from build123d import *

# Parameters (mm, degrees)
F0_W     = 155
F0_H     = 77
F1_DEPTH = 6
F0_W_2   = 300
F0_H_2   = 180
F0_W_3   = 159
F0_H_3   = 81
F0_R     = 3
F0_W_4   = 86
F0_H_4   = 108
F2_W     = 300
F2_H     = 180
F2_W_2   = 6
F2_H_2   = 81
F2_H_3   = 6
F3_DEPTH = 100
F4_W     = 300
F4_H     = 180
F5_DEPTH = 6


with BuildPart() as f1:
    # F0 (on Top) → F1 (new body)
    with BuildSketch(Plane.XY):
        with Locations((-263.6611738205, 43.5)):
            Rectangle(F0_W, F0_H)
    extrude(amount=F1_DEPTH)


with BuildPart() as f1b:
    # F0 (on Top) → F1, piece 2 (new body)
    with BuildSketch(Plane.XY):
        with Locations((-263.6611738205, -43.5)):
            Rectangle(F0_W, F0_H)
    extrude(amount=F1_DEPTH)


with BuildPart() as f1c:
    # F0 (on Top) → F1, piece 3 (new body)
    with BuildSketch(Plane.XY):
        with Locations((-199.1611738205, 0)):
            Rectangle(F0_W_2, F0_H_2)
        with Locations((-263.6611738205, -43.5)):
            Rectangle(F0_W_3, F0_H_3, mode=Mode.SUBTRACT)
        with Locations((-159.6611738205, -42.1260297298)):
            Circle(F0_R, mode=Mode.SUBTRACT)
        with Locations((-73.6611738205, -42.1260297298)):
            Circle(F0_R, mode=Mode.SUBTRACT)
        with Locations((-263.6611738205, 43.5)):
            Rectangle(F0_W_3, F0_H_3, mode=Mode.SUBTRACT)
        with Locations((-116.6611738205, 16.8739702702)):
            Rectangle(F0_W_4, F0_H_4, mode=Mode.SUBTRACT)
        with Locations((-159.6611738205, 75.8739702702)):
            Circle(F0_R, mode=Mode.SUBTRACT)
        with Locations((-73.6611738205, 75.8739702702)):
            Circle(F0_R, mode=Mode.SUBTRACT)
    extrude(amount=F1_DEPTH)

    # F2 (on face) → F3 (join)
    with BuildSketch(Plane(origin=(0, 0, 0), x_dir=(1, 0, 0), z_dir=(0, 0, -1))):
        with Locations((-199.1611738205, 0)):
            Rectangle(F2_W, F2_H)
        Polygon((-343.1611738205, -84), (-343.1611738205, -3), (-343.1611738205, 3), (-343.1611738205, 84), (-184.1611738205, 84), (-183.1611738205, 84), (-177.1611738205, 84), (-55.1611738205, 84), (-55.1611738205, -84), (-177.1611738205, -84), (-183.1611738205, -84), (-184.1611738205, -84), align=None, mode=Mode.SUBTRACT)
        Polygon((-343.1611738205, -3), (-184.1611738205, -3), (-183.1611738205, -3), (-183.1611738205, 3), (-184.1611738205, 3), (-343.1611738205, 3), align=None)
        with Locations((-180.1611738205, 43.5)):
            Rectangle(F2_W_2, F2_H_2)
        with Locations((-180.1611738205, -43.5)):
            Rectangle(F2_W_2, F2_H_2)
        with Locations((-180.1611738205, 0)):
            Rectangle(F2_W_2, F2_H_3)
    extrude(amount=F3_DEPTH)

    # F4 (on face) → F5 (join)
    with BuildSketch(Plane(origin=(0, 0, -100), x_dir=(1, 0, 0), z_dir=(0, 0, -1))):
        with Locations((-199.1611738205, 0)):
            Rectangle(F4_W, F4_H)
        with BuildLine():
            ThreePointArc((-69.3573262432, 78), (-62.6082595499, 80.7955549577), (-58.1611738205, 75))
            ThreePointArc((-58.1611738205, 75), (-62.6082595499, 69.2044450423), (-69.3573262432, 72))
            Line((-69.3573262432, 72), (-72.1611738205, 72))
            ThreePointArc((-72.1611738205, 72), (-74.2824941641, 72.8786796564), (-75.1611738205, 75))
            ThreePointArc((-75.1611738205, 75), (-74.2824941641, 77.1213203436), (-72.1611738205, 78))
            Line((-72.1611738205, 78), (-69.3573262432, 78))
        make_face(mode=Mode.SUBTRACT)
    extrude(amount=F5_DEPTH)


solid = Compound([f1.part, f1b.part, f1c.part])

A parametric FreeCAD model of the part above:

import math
import FreeCAD as App
import Part
import Sketcher
Q = App.Units.Quantity

doc = App.newDocument("Part")
body = doc.addObject("PartDesign::Body", "Body")

# Sketch on XY plane
sketch1 = body.newObject("Sketcher::SketchObject", "Sketch")
sketch1.AttachmentSupport = (doc.getObject("XY_Plane"), [""])
sketch1.MapMode = "FlatFace"
sketch1.addGeometry([
    Part.LineSegment(App.Vector(-341.161174, 82, 0), App.Vector(-341.161174, 5, 0)),
    Part.LineSegment(App.Vector(-341.161174, 5, 0), App.Vector(-186.161174, 5, 0)),
    Part.LineSegment(App.Vector(-186.161174, 5, 0), App.Vector(-186.161174, 82, 0)),
    Part.LineSegment(App.Vector(-186.161174, 82, 0), App.Vector(-341.161174, 82, 0)),
], False)
sketch1.addConstraint([
    Sketcher.Constraint("Coincident", 0, 2, 1, 1),
    Sketcher.Constraint("Coincident", 1, 2, 2, 1),
    Sketcher.Constraint("Coincident", 2, 2, 3, 1),
    Sketcher.Constraint("Coincident", 3, 2, 0, 1),
    Sketcher.Constraint("Vertical", 0),
    Sketcher.Constraint("Horizontal", 1),
    Sketcher.Constraint("Vertical", 2),
    Sketcher.Constraint("Horizontal", 3),
    Sketcher.Constraint("DistanceX", 1, 1, 1, 2, Q("155 mm")),
    Sketcher.Constraint("DistanceY", 0, 2, 0, 1, Q("77 mm")),
    Sketcher.Constraint("DistanceY", -1, 1, 0, 2, Q("5 mm")),
    Sketcher.Constraint("DistanceX", 0, 2, -1, 1, Q("341.161174 mm")),
])
pad1 = body.newObject("PartDesign::Pad", "Pad")
pad1.Profile = sketch1
pad1.Length = 6
body2 = doc.addObject("PartDesign::Body", "Body001")

# Sketch on XY plane
sketch2 = body2.newObject("Sketcher::SketchObject", "Sketch001")
sketch2.AttachmentSupport = (doc.getObject("XY_Plane001"), [""])
sketch2.MapMode = "FlatFace"
sketch2.addGeometry([
    Part.LineSegment(App.Vector(-341.161174, -5, 0), App.Vector(-341.161174, -82, 0)),
    Part.LineSegment(App.Vector(-341.161174, -82, 0), App.Vector(-186.161174, -82, 0)),
    Part.LineSegment(App.Vector(-186.161174, -82, 0), App.Vector(-186.161174, -5, 0)),
    Part.LineSegment(App.Vector(-186.161174, -5, 0), App.Vector(-341.161174, -5, 0)),
], False)
sketch2.addConstraint([
    Sketcher.Constraint("Coincident", 0, 2, 1, 1),
    Sketcher.Constraint("Coincident", 1, 2, 2, 1),
    Sketcher.Constraint("Coincident", 2, 2, 3, 1),
    Sketcher.Constraint("Coincident", 3, 2, 0, 1),
    Sketcher.Constraint("Vertical", 0),
    Sketcher.Constraint("Horizontal", 1),
    Sketcher.Constraint("Vertical", 2),
    Sketcher.Constraint("Horizontal", 3),
    Sketcher.Constraint("DistanceX", 1, 1, 1, 2, Q("155 mm")),
    Sketcher.Constraint("DistanceY", 0, 2, 0, 1, Q("77 mm")),
    Sketcher.Constraint("DistanceY", 0, 2, -1, 1, Q("82 mm")),
    Sketcher.Constraint("DistanceX", 0, 2, -1, 1, Q("341.161174 mm")),
])
pad2 = body2.newObject("PartDesign::Pad", "Pad001")
pad2.Profile = sketch2
pad2.Length = 6
body3 = doc.addObject("PartDesign::Body", "Body002")

# Sketch on XY plane
sketch3 = body3.newObject("Sketcher::SketchObject", "Sketch002")
sketch3.AttachmentSupport = (doc.getObject("XY_Plane002"), [""])
sketch3.MapMode = "FlatFace"
sketch3.addGeometry([
    Part.LineSegment(App.Vector(-349.161174, 90, 0), App.Vector(-349.161174, -90, 0)),  # 0
    Part.LineSegment(App.Vector(-349.161174, -90, 0), App.Vector(-49.161174, -90, 0)),  # 1
    Part.LineSegment(App.Vector(-49.161174, -90, 0), App.Vector(-49.161174, 90, 0)),  # 2
    Part.LineSegment(App.Vector(-49.161174, 90, 0), App.Vector(-349.161174, 90, 0)),  # 3
    Part.LineSegment(App.Vector(-184.161174, -84, 0), App.Vector(-343.161174, -84, 0)),  # 4
    Part.LineSegment(App.Vector(-343.161174, -84, 0), App.Vector(-343.161174, -3, 0)),  # 5
    Part.LineSegment(App.Vector(-343.161174, -3, 0), App.Vector(-184.161174, -3, 0)),  # 6
    Part.LineSegment(App.Vector(-184.161174, -3, 0), App.Vector(-184.161174, -84, 0)),  # 7
    Part.Circle(App.Vector(-159.661174, -42.12603, 0), App.Vector(0, 0, 1), 3),  # 8
    Part.Circle(App.Vector(-73.661174, -42.12603, 0), App.Vector(0, 0, 1), 3),  # 9
    Part.LineSegment(App.Vector(-184.161174, 3, 0), App.Vector(-343.161174, 3, 0)),  # 10
    Part.LineSegment(App.Vector(-343.161174, 3, 0), App.Vector(-343.161174, 84, 0)),  # 11
    Part.LineSegment(App.Vector(-343.161174, 84, 0), App.Vector(-184.161174, 84, 0)),  # 12
    Part.LineSegment(App.Vector(-184.161174, 84, 0), App.Vector(-184.161174, 3, 0)),  # 13
    Part.LineSegment(App.Vector(-73.661174, -37.12603, 0), App.Vector(-159.661174, -37.12603, 0)),  # 14
    Part.LineSegment(App.Vector(-159.661174, -37.12603, 0), App.Vector(-159.661174, 70.87397, 0)),  # 15
    Part.LineSegment(App.Vector(-159.661174, 70.87397, 0), App.Vector(-73.661174, 70.87397, 0)),  # 16
    Part.LineSegment(App.Vector(-73.661174, 70.87397, 0), App.Vector(-73.661174, -37.12603, 0)),  # 17
    Part.Circle(App.Vector(-159.661174, 75.87397, 0), App.Vector(0, 0, 1), 3),  # 18
    Part.Circle(App.Vector(-73.661174, 75.87397, 0), App.Vector(0, 0, 1), 3),  # 19
], False)
sketch3.addConstraint([
    Sketcher.Constraint("Coincident", 0, 2, 1, 1),
    Sketcher.Constraint("Coincident", 1, 2, 2, 1),
    Sketcher.Constraint("Coincident", 2, 2, 3, 1),
    Sketcher.Constraint("Coincident", 3, 2, 0, 1),
    Sketcher.Constraint("Coincident", 4, 2, 5, 1),
    Sketcher.Constraint("Coincident", 5, 2, 6, 1),
    Sketcher.Constraint("Coincident", 6, 2, 7, 1),
    Sketcher.Constraint("Coincident", 7, 2, 4, 1),
    Sketcher.Constraint("Coincident", 10, 2, 11, 1),
    Sketcher.Constraint("Coincident", 11, 2, 12, 1),
    Sketcher.Constraint("Coincident", 12, 2, 13, 1),
    Sketcher.Constraint("Coincident", 13, 2, 10, 1),
    Sketcher.Constraint("Coincident", 14, 2, 15, 1),
    Sketcher.Constraint("Coincident", 15, 2, 16, 1),
    Sketcher.Constraint("Coincident", 16, 2, 17, 1),
    Sketcher.Constraint("Coincident", 17, 2, 14, 1),
    Sketcher.Constraint("Vertical", 0),
    Sketcher.Constraint("Horizontal", 1),
    Sketcher.Constraint("Vertical", 2),
    Sketcher.Constraint("Horizontal", 3),
    Sketcher.Constraint("Horizontal", 4),
    Sketcher.Constraint("Vertical", 5),
    Sketcher.Constraint("Horizontal", 6),
    Sketcher.Constraint("Vertical", 7),
    Sketcher.Constraint("Horizontal", 10),
    Sketcher.Constraint("Vertical", 11),
    Sketcher.Constraint("Horizontal", 12),
    Sketcher.Constraint("Vertical", 13),
    Sketcher.Constraint("Horizontal", 14),
    Sketcher.Constraint("Vertical", 15),
    Sketcher.Constraint("Horizontal", 16),
    Sketcher.Constraint("Vertical", 17),
    Sketcher.Constraint("Equal", 8, 9),
    Sketcher.Constraint("Equal", 9, 18),
    Sketcher.Constraint("Equal", 18, 19),
    Sketcher.Constraint("Symmetric", 5, 2, 10, 2, -1),
    Sketcher.Constraint("Symmetric", 7, 2, 12, 2, -1),
    Sketcher.Constraint("Horizontal", 8, 3, 9, 3),
    Sketcher.Constraint("Horizontal", 18, 3, 19, 3),
    Sketcher.Constraint("Vertical", 8, 3, 18, 3),
    Sketcher.Constraint("Vertical", 9, 3, 19, 3),
    Sketcher.Constraint("Vertical", 18, 3, 14, 2),
    Sketcher.Constraint("Vertical", 19, 3, 16, 2),
    Sketcher.Constraint("Diameter", 8, Q("6 mm")),
    Sketcher.Constraint("DistanceX", 1, 1, 1, 2, Q("300 mm")),
    Sketcher.Constraint("DistanceX", 4, 2, 4, 1, Q("159 mm")),
    Sketcher.Constraint("DistanceX", 14, 2, 14, 1, Q("86 mm")),
    Sketcher.Constraint("DistanceY", 0, 2, 0, 1, Q("180 mm")),
    Sketcher.Constraint("DistanceY", 5, 1, 5, 2, Q("81 mm")),
    Sketcher.Constraint("DistanceY", 15, 1, 15, 2, Q("108 mm")),
    Sketcher.Constraint("DistanceY", 0, 2, -1, 1, Q("90 mm")),
    Sketcher.Constraint("DistanceY", 4, 2, -1, 1, Q("84 mm")),
    Sketcher.Constraint("DistanceY", 8, 3, 18, 3, Q("118 mm")),
    Sketcher.Constraint("DistanceX", 0, 2, 4, 2, Q("6 mm")),
    Sketcher.Constraint("DistanceY", 8, 3, 14, 2, Q("5 mm")),
    Sketcher.Constraint("DistanceX", 0, 2, 8, 3, Q("189.5 mm")),
    Sketcher.Constraint("DistanceY", 8, 3, -1, 1, Q("42.12603 mm")),
    Sketcher.Constraint("DistanceX", 8, 3, -1, 1, Q("159.661174 mm")),
])
pad3 = body3.newObject("PartDesign::Pad", "Pad002")
pad3.Profile = sketch3
pad3.Length = 6

# Sketch on XY plane
sketch4 = body3.newObject("Sketcher::SketchObject", "Sketch003")
sketch4.AttachmentSupport = (doc.getObject("XY_Plane002"), [""])
sketch4.MapMode = "FlatFace"
sketch4.addGeometry([
    Part.LineSegment(App.Vector(-349.161174, -90, 0), App.Vector(-349.161174, 90, 0)),  # 0
    Part.LineSegment(App.Vector(-349.161174, 90, 0), App.Vector(-49.161174, 90, 0)),  # 1
    Part.LineSegment(App.Vector(-49.161174, 90, 0), App.Vector(-49.161174, -90, 0)),  # 2
    Part.LineSegment(App.Vector(-49.161174, -90, 0), App.Vector(-349.161174, -90, 0)),  # 3
    Part.LineSegment(App.Vector(-343.161174, 3, 0), App.Vector(-183.161174, 3, 0)),  # 4
    Part.LineSegment(App.Vector(-183.161174, 3, 0), App.Vector(-183.161174, 84, 0)),  # 5
    Part.LineSegment(App.Vector(-183.161174, 84, 0), App.Vector(-343.161174, 84, 0)),  # 6
    Part.LineSegment(App.Vector(-343.161174, 84, 0), App.Vector(-343.161174, 3, 0)),  # 7
    Part.LineSegment(App.Vector(-183.161174, -84, 0), App.Vector(-183.161174, -3, 0)),  # 8
    Part.LineSegment(App.Vector(-183.161174, -3, 0), App.Vector(-343.161174, -3, 0)),  # 9
    Part.LineSegment(App.Vector(-343.161174, -3, 0), App.Vector(-343.161174, -84, 0)),  # 10
    Part.LineSegment(App.Vector(-343.161174, -84, 0), App.Vector(-183.161174, -84, 0)),  # 11
    Part.LineSegment(App.Vector(-177.161174, 84, 0), App.Vector(-177.161174, -84, 0)),  # 12
    Part.LineSegment(App.Vector(-177.161174, -84, 0), App.Vector(-55.161174, -84, 0)),  # 13
    Part.LineSegment(App.Vector(-55.161174, -84, 0), App.Vector(-55.161174, 84, 0)),  # 14
    Part.LineSegment(App.Vector(-55.161174, 84, 0), App.Vector(-177.161174, 84, 0)),  # 15
], False)
sketch4.addConstraint([
    Sketcher.Constraint("Coincident", 0, 2, 1, 1),
    Sketcher.Constraint("Coincident", 1, 2, 2, 1),
    Sketcher.Constraint("Coincident", 2, 2, 3, 1),
    Sketcher.Constraint("Coincident", 3, 2, 0, 1),
    Sketcher.Constraint("Coincident", 4, 2, 5, 1),
    Sketcher.Constraint("Coincident", 5, 2, 6, 1),
    Sketcher.Constraint("Coincident", 6, 2, 7, 1),
    Sketcher.Constraint("Coincident", 7, 2, 4, 1),
    Sketcher.Constraint("Coincident", 8, 2, 9, 1),
    Sketcher.Constraint("Coincident", 9, 2, 10, 1),
    Sketcher.Constraint("Coincident", 10, 2, 11, 1),
    Sketcher.Constraint("Coincident", 11, 2, 8, 1),
    Sketcher.Constraint("Coincident", 12, 2, 13, 1),
    Sketcher.Constraint("Coincident", 13, 2, 14, 1),
    Sketcher.Constraint("Coincident", 14, 2, 15, 1),
    Sketcher.Constraint("Coincident", 15, 2, 12, 1),
    Sketcher.Constraint("Vertical", 0),
    Sketcher.Constraint("Horizontal", 1),
    Sketcher.Constraint("Vertical", 2),
    Sketcher.Constraint("Horizontal", 3),
    Sketcher.Constraint("Horizontal", 4),
    Sketcher.Constraint("Vertical", 5),
    Sketcher.Constraint("Horizontal", 6),
    Sketcher.Constraint("Vertical", 7),
    Sketcher.Constraint("Vertical", 8),
    Sketcher.Constraint("Horizontal", 9),
    Sketcher.Constraint("Vertical", 10),
    Sketcher.Constraint("Horizontal", 11),
    Sketcher.Constraint("Vertical", 12),
    Sketcher.Constraint("Horizontal", 13),
    Sketcher.Constraint("Vertical", 14),
    Sketcher.Constraint("Horizontal", 15),
    Sketcher.Constraint("Symmetric", 4, 2, 8, 2, -1),
    Sketcher.Constraint("Symmetric", 6, 2, 10, 2, -1),
    Sketcher.Constraint("Horizontal", 11, 2, 12, 2),
    Sketcher.Constraint("Horizontal", 6, 2, 14, 2),
    Sketcher.Constraint("DistanceX", 1, 1, 1, 2, Q("300 mm")),
    Sketcher.Constraint("DistanceX", 4, 1, 4, 2, Q("160 mm")),
    Sketcher.Constraint("DistanceX", 13, 1, 13, 2, Q("122 mm")),
    Sketcher.Constraint("DistanceY", 0, 1, 0, 2, Q("180 mm")),
    Sketcher.Constraint("DistanceY", 5, 1, 5, 2, Q("81 mm")),
    Sketcher.Constraint("DistanceY", 12, 2, 12, 1, Q("168 mm")),
    Sketcher.Constraint("DistanceY", -1, 1, 0, 2, Q("90 mm")),
    Sketcher.Constraint("DistanceX", 4, 2, 1, 2, Q("134 mm")),
    Sketcher.Constraint("DistanceX", 11, 2, 12, 2, Q("6 mm")),
    Sketcher.Constraint("DistanceX", 0, 2, -1, 1, Q("349.161174 mm")),
])
pad4 = body3.newObject("PartDesign::Pad", "Pad003")
pad4.Profile = sketch4
pad4.Length = 100
pad4.Reversed = True

# Sketch on XY plane
sketch5 = body3.newObject("Sketcher::SketchObject", "Sketch004")
sketch5.AttachmentSupport = (doc.getObject("XY_Plane002"), [""])
sketch5.MapMode = "FlatFace"
sketch5.AttachmentOffset = App.Placement(App.Vector(0, 0, -100), App.Rotation())
sketch5.addGeometry([
    Part.LineSegment(App.Vector(-349.161174, -90, 0), App.Vector(-349.161174, 90, 0)),  # 0
    Part.LineSegment(App.Vector(-349.161174, 90, 0), App.Vector(-49.161174, 90, 0)),  # 1
    Part.LineSegment(App.Vector(-49.161174, 90, 0), App.Vector(-49.161174, -90, 0)),  # 2
    Part.LineSegment(App.Vector(-49.161174, -90, 0), App.Vector(-349.161174, -90, 0)),  # 3
    Part.LineSegment(App.Vector(-72.161174, -78, 0), App.Vector(-69.357326, -78, 0)),  # 4
    Part.ArcOfCircle(Part.Circle(App.Vector(-64.161174, -75, 0), App.Vector(0, 0, 1), 6), math.radians(-150), math.radians(0)),  # 5
    Part.ArcOfCircle(Part.Circle(App.Vector(-64.161174, -75, 0), App.Vector(0, 0, 1), 6), math.radians(0), math.radians(150)),  # 6
    Part.LineSegment(App.Vector(-69.357326, -72, 0), App.Vector(-72.161174, -72, 0)),  # 7
    Part.ArcOfCircle(Part.Circle(App.Vector(-72.161174, -75, 0), App.Vector(0, 0, 1), 3), math.radians(90), math.radians(180)),  # 8
    Part.ArcOfCircle(Part.Circle(App.Vector(-72.161174, -75, 0), App.Vector(0, 0, 1), 3), math.radians(180), math.radians(270)),  # 9
], False)
sketch5.addConstraint([
    Sketcher.Constraint("Coincident", 0, 2, 1, 1),
    Sketcher.Constraint("Coincident", 1, 2, 2, 1),
    Sketcher.Constraint("Coincident", 2, 2, 3, 1),
    Sketcher.Constraint("Coincident", 3, 2, 0, 1),
    Sketcher.Constraint("Coincident", 4, 2, 5, 1),
    Sketcher.Constraint("Tangent", 5, 2, 6, 1),
    Sketcher.Constraint("Coincident", 6, 2, 7, 1),
    Sketcher.Constraint("Tangent", 7, 2, 8, 1),
    Sketcher.Constraint("Tangent", 8, 2, 9, 1),
    Sketcher.Constraint("Tangent", 9, 2, 4, 1),
    Sketcher.Constraint("Vertical", 0),
    Sketcher.Constraint("Horizontal", 1),
    Sketcher.Constraint("Vertical", 2),
    Sketcher.Constraint("Horizontal", 3),
    Sketcher.Constraint("Horizontal", 4),
    Sketcher.Constraint("Horizontal", 7),
    Sketcher.Constraint("Equal", 5, 6),
    Sketcher.Constraint("Equal", 8, 9),
    Sketcher.Constraint("Horizontal", 6, 3, 8, 3),
    Sketcher.Constraint("Horizontal", 9, 3, 5, 2),
    Sketcher.Constraint("Horizontal", 5, 2, 8, 2),
    Sketcher.Constraint("Radius", 5, Q("6 mm")),
    Sketcher.Constraint("Radius", 8, Q("3 mm")),
    Sketcher.Constraint("DistanceX", 1, 1, 1, 2, Q("300 mm")),
    Sketcher.Constraint("DistanceY", 0, 1, 0, 2, Q("180 mm")),
    Sketcher.Constraint("DistanceY", 5, 3, -1, 1, Q("75 mm")),
    Sketcher.Constraint("DistanceY", -1, 1, 0, 2, Q("90 mm")),
    Sketcher.Constraint("DistanceX", 8, 3, 5, 3, Q("8 mm")),
    Sketcher.Constraint("DistanceX", 0, 2, 8, 3, Q("277 mm")),
    Sketcher.Constraint("DistanceX", 5, 3, -1, 1, Q("64.161174 mm")),
])
pad5 = body3.newObject("PartDesign::Pad", "Pad004")
pad5.Profile = sketch5
pad5.Length = 6
pad5.Reversed = True

doc.recompute()
